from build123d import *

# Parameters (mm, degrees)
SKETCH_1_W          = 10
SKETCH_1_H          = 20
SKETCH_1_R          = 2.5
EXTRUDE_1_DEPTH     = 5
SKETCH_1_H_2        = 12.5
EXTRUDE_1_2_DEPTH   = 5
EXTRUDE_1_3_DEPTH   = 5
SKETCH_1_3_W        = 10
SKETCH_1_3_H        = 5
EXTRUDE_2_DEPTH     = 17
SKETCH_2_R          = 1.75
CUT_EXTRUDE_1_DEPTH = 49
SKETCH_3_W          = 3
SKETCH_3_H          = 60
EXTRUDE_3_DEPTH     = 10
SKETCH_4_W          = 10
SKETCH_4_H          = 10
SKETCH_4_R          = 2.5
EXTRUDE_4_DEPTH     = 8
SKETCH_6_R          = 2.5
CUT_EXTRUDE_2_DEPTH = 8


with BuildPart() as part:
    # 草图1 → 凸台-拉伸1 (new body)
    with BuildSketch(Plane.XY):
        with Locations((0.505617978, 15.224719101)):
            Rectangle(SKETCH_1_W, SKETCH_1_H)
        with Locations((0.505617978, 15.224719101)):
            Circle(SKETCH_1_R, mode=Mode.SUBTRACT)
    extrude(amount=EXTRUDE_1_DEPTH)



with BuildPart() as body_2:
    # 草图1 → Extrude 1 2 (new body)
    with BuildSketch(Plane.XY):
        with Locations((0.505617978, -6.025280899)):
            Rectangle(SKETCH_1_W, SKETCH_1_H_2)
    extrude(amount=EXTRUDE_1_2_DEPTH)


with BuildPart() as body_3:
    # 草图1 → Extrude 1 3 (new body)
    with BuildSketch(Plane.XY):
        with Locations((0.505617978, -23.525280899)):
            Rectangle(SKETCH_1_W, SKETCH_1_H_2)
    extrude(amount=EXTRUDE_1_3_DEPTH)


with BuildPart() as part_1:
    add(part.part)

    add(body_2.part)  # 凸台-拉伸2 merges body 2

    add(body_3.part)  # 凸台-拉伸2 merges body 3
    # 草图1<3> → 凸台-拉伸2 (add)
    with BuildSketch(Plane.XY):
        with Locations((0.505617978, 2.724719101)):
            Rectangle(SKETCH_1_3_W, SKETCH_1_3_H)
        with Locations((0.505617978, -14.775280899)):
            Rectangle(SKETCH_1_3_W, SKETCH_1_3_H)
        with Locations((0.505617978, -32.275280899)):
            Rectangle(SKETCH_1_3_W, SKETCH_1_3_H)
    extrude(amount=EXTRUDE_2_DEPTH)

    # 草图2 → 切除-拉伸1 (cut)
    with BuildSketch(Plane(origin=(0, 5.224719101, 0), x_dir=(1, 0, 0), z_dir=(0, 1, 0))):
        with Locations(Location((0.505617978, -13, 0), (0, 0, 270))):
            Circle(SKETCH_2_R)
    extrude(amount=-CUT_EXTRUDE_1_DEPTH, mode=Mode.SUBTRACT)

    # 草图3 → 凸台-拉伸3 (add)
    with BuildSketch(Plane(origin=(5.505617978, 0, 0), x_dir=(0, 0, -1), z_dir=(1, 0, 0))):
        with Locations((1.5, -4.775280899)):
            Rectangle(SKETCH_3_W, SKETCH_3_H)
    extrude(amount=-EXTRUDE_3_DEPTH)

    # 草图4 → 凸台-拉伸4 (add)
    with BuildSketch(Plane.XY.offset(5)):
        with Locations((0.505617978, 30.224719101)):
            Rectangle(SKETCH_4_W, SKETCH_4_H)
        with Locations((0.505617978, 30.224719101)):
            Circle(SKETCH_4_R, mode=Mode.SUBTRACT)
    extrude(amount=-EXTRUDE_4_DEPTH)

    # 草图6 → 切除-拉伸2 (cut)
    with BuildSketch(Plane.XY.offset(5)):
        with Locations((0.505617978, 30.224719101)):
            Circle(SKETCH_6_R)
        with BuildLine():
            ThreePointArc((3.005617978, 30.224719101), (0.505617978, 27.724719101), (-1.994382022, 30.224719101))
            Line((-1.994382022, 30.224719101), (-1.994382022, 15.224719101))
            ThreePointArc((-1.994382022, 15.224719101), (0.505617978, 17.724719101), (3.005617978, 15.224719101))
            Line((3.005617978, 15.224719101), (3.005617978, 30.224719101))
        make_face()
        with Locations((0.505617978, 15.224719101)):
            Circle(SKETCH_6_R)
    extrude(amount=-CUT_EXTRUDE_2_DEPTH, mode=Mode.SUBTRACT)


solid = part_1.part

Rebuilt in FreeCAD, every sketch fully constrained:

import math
import FreeCAD as App
import Part
import Sketcher

V = App.Vector


def add_polygon(sketch, points):
    """Adds a closed chain of lines whose ends are joined by coincident constraints."""
    first, n = sketch.GeometryCount, len(points)
    for a, b in zip(points, points[1:] + points[:1]):
        sketch.addGeometry(Part.LineSegment(App.Vector(*a, 0), App.Vector(*b, 0)), False)
    for i in range(n):
        sketch.addConstraint(Sketcher.Constraint("Coincident", first + i, 2, first + (i + 1) % n, 1))

doc = App.newDocument("Part")
body = doc.addObject("PartDesign::Body", "Body")

sketch1 = body.newObject("Sketcher::SketchObject", "Sketch")
sketch1.AttachmentSupport = (doc.getObject("XY_Plane"), [""])
sketch1.MapMode = "FlatFace"
add_polygon(sketch1, [(-4.5, 25.2), (-4.5, 5.2), (5.5, 5.2), (5.5, 25.2)])
sketch1.addGeometry(Part.Circle(V(0.5, 15.2, 0), V(0, 0, 1), 2.5), False)
sketch1.addConstraint([
    Sketcher.Constraint("Vertical", 0),
    Sketcher.Constraint("Horizontal", 1),
    Sketcher.Constraint("Vertical", 2),
    Sketcher.Constraint("Horizontal", 3),
    Sketcher.Constraint("Diameter", 4, 5.0),
    Sketcher.Constraint("DistanceX", 1, 1, 1, 2, 10.0),
    Sketcher.Constraint("DistanceY", 0, 2, 0, 1, 20.0),
    Sketcher.Constraint("DistanceX", 0, 2, 4, 3, 5.0),
    Sketcher.Constraint("DistanceY", 0, 2, 4, 3, 10.0),
    Sketcher.Constraint("DistanceY", -1, 1, 4, 3, 15.224719),
    Sketcher.Constraint("DistanceX", -1, 1, 4, 3, 0.505618),
])
pad1 = body.newObject("PartDesign::Pad", "Pad")
pad1.Profile = sketch1
pad1.Length = 5
body2 = doc.addObject("PartDesign::Body", "Body001")

sketch2 = body2.newObject("Sketcher::SketchObject", "Sketch001")
sketch2.AttachmentSupport = (doc.getObject("XY_Plane001"), [""])
sketch2.MapMode = "FlatFace"
add_polygon(sketch2, [(-4, 0), (-4, -12), (6, -12), (6, 0)])
sketch2.addConstraint([
    Sketcher.Constraint("Vertical", 0),
    Sketcher.Constraint("Horizontal", 1),
    Sketcher.Constraint("Vertical", 2),
    Sketcher.Constraint("Horizontal", 3),
    Sketcher.Constraint("DistanceX", 1, 1, 1, 2, 10.0),
    Sketcher.Constraint("DistanceY", 0, 2, 0, 1, 12.5),
    Sketcher.Constraint("DistanceY", 0, 2, -1, 1, 12.275281),
    Sketcher.Constraint("DistanceX", 0, 2, -1, 1, 4.494382),
])
pad2 = body2.newObject("PartDesign::Pad", "Pad001")
pad2.Profile = sketch2
pad2.Length = 5
body3 = doc.addObject("PartDesign::Body", "Body002")

sketch3 = body3.newObject("Sketcher::SketchObject", "Sketch002")
sketch3.AttachmentSupport = (doc.getObject("XY_Plane002"), [""])
sketch3.MapMode = "FlatFace"
add_polygon(sketch3, [(-4, -17), (-4, -30), (6, -30), (6, -17)])
sketch3.addConstraint([
    Sketcher.Constraint("Vertical", 0),
    Sketcher.Constraint("Horizontal", 1),
    Sketcher.Constraint("Vertical", 2),
    Sketcher.Constraint("Horizontal", 3),
    Sketcher.Constraint("DistanceX", 1, 1, 1, 2, 10.0),
    Sketcher.Constraint("DistanceY", 0, 2, 0, 1, 12.5),
    Sketcher.Constraint("DistanceY", 0, 2, -1, 1, 29.775281),
    Sketcher.Constraint("DistanceX", 0, 2, -1, 1, 4.494382),
])
pad3 = body3.newObject("PartDesign::Pad", "Pad002")
pad3.Profile = sketch3
pad3.Length = 5
body.AllowCompound = True
doc.recompute()

boolean = body.newObject("PartDesign::Boolean", "Boolean")
boolean.Type = "Fuse"
boolean.addObjects([body2])
doc.recompute()

boolean2 = body.newObject("PartDesign::Boolean", "Boolean001")
boolean2.Type = "Fuse"
boolean2.addObjects([body3])

sketch4 = body.newObject("Sketcher::SketchObject", "Sketch003")
sketch4.AttachmentSupport = (doc.getObject("XY_Plane"), [""])
sketch4.MapMode = "FlatFace"
add_polygon(sketch4, [(-4.5, 5.2), (-4.5, 0.2), (5.5, 0.2), (5.5, 5.2)])
add_polygon(sketch4, [(-4.5, -12.3), (-4.5, -17.3), (5.5, -17.3), (5.5, -12.3)])
add_polygon(sketch4, [(-4.5, -29.8), (-4.5, -34.8), (5.5, -34.8), (5.5, -29.8)])
sketch4.addConstraint([
    Sketcher.Constraint("Vertical", 0),
    Sketcher.Constraint("Horizontal", 1),
    Sketcher.Constraint("Vertical", 2),
    Sketcher.Constraint("Horizontal", 3),
    Sketcher.Constraint("Vertical", 4),
    Sketcher.Constraint("Horizontal", 5),
    Sketcher.Constraint("Vertical", 6),
    Sketcher.Constraint("Horizontal", 7),
    Sketcher.Constraint("Vertical", 8),
    Sketcher.Constraint("Horizontal", 9),
    Sketcher.Constraint("Vertical", 10),
    Sketcher.Constraint("Horizontal", 11),
    Sketcher.Constraint("Vertical", 3, 2, 4, 2),
    Sketcher.Constraint("Vertical", 2, 2, 5, 2),
    Sketcher.Constraint("Vertical", 7, 2, 8, 2),
    Sketcher.Constraint("Vertical", 6, 2, 9, 2),
    Sketcher.Constraint("Equal", 2, 4),
    Sketcher.Constraint("Equal", 6, 8),
    Sketcher.Constraint("DistanceX", 1, 1, 1, 2, 10.0),
    Sketcher.Constraint("DistanceY", 0, 2, 0, 1, 5.0),
    Sketcher.Constraint("DistanceY", 8, 2, 0, 2, 35.0),
    Sketcher.Constraint("DistanceY", 4, 2, 0, 2, 17.5),
    Sketcher.Constraint("DistanceY", -1, 1, 0, 2, 0.224719),
    Sketcher.Constraint("DistanceX", 0, 2, -1, 1, 4.494382),
])
pad4 = body.newObject("PartDesign::Pad", "Pad003")
pad4.Profile = sketch4
pad4.Length = 17

sketch5 = body.newObject("Sketcher::SketchObject", "Sketch004")
sketch5.AttachmentSupport = (doc.getObject("XZ_Plane"), [""])
sketch5.MapMode = "FlatFace"
sketch5.AttachmentOffset = App.Placement(V(0, 0, -5.224719), App.Rotation())
sketch5.addGeometry(Part.Circle(V(0.5, 13, 0), V(0, 0, 1), 1.8), False)
sketch5.addConstraint([
    Sketcher.Constraint("Diameter", 0, 3.5),
    Sketcher.Constraint("DistanceY", -1, 1, 0, 3, 13.0),
    Sketcher.Constraint("DistanceX", -1, 1, 0, 3, 0.505618),
])
pocket1 = body.newObject("PartDesign::Pocket", "Pocket")
pocket1.Profile = sketch5
pocket1.Length = 49
pocket1.Reversed = True

sketch6 = body.newObject("Sketcher::SketchObject", "Sketch005")
sketch6.AttachmentSupport = (doc.getObject("YZ_Plane"), [""])
sketch6.MapMode = "FlatFace"
sketch6.AttachmentOffset = App.Placement(V(0, 0, 5.505618), App.Rotation())
add_polygon(sketch6, [(25.2, 0), (-34.8, 0), (-34.8, -3), (25.2, -3)])
sketch6.addConstraint([
    Sketcher.Constraint("Horizontal", 0),
    Sketcher.Constraint("Vertical", 1),
    Sketcher.Constraint("Horizontal", 2),
    Sketcher.Constraint("Vertical", 3),
    Sketcher.Constraint("PointOnObject", 0, 2, -1),
    Sketcher.Constraint("DistanceX", 0, 2, 0, 1, 60.0),
    Sketcher.Constraint("DistanceY", 1, 2, 1, 1, 3.0),
    Sketcher.Constraint("DistanceX", 0, 2, -1, 1, 34.775281),
])
pad5 = body.newObject("PartDesign::Pad", "Pad004")
pad5.Profile = sketch6
pad5.Length = 10
pad5.Reversed = True

sketch7 = body.newObject("Sketcher::SketchObject", "Sketch006")
sketch7.AttachmentSupport = (doc.getObject("XY_Plane"), [""])
sketch7.MapMode = "FlatFace"
sketch7.AttachmentOffset = App.Placement(V(0, 0, 5), App.Rotation())
add_polygon(sketch7, [(-4.5, 35.2), (-4.5, 25.2), (5.5, 25.2), (5.5, 35.2)])
sketch7.addGeometry(Part.Circle(V(0.5, 30.2, 0), V(0, 0, 1), 2.5), False)
sketch7.addConstraint([
    Sketcher.Constraint("Vertical", 0),
    Sketcher.Constraint("Horizontal", 1),
    Sketcher.Constraint("Vertical", 2),
    Sketcher.Constraint("Horizontal", 3),
    Sketcher.Constraint("Equal", 3, 0),
    Sketcher.Constraint("Diameter", 4, 5.0),
    Sketcher.Constraint("DistanceX", 1, 1, 1, 2, 10.0),
    Sketcher.Constraint("DistanceX", 0, 2, 4, 3, 5.0),
    Sketcher.Constraint("DistanceY", 0, 2, 4, 3, 5.0),
    Sketcher.Constraint("DistanceY", -1, 1, 4, 3, 30.224719),
    Sketcher.Constraint("DistanceX", -1, 1, 4, 3, 0.505618),
])
pad6 = body.newObject("PartDesign::Pad", "Pad005")
pad6.Profile = sketch7
pad6.Length = 8
pad6.Reversed = True

sketch8 = body.newObject("Sketcher::SketchObject", "Sketch007")
sketch8.AttachmentSupport = (doc.getObject("XY_Plane"), [""])
sketch8.MapMode = "FlatFace"
sketch8.AttachmentOffset = App.Placement(V(0, 0, 5), App.Rotation())
sketch8.addGeometry([
    Part.ArcOfCircle(Part.Circle(V(0.5, 30.2, 0), V(0, 0, 1), 2.5), math.radians(0), math.radians(180)),
    Part.LineSegment(V(-2, 30.2, 0), V(-2, 15.2, 0)),
    Part.ArcOfCircle(Part.Circle(V(0.5, 15.2, 0), V(0, 0, 1), 2.5), math.radians(180), math.radians(360)),
    Part.LineSegment(V(3, 15.2, 0), V(3, 30.2, 0)),
], False)
sketch8.addConstraint([
    Sketcher.Constraint("Tangent", 0, 2, 1, 1),
    Sketcher.Constraint("Tangent", 1, 2, 2, 1),
    Sketcher.Constraint("Tangent", 2, 2, 3, 1),
    Sketcher.Constraint("Tangent", 3, 2, 0, 1),
    Sketcher.Constraint("Vertical", 1),
    Sketcher.Constraint("Vertical", 3),
    Sketcher.Constraint("Radius", 0, 2.5),
    Sketcher.Constraint("DistanceY", 1, 2, 1, 1, 15.0),
    Sketcher.Constraint("DistanceY", -1, 1, 0, 3, 30.224719),
    Sketcher.Constraint("DistanceX", -1, 1, 0, 3, 0.505618),
])
pocket2 = body.newObject("PartDesign::Pocket", "Pocket001")
pocket2.Profile = sketch8
pocket2.Length = 8

doc.recompute()
